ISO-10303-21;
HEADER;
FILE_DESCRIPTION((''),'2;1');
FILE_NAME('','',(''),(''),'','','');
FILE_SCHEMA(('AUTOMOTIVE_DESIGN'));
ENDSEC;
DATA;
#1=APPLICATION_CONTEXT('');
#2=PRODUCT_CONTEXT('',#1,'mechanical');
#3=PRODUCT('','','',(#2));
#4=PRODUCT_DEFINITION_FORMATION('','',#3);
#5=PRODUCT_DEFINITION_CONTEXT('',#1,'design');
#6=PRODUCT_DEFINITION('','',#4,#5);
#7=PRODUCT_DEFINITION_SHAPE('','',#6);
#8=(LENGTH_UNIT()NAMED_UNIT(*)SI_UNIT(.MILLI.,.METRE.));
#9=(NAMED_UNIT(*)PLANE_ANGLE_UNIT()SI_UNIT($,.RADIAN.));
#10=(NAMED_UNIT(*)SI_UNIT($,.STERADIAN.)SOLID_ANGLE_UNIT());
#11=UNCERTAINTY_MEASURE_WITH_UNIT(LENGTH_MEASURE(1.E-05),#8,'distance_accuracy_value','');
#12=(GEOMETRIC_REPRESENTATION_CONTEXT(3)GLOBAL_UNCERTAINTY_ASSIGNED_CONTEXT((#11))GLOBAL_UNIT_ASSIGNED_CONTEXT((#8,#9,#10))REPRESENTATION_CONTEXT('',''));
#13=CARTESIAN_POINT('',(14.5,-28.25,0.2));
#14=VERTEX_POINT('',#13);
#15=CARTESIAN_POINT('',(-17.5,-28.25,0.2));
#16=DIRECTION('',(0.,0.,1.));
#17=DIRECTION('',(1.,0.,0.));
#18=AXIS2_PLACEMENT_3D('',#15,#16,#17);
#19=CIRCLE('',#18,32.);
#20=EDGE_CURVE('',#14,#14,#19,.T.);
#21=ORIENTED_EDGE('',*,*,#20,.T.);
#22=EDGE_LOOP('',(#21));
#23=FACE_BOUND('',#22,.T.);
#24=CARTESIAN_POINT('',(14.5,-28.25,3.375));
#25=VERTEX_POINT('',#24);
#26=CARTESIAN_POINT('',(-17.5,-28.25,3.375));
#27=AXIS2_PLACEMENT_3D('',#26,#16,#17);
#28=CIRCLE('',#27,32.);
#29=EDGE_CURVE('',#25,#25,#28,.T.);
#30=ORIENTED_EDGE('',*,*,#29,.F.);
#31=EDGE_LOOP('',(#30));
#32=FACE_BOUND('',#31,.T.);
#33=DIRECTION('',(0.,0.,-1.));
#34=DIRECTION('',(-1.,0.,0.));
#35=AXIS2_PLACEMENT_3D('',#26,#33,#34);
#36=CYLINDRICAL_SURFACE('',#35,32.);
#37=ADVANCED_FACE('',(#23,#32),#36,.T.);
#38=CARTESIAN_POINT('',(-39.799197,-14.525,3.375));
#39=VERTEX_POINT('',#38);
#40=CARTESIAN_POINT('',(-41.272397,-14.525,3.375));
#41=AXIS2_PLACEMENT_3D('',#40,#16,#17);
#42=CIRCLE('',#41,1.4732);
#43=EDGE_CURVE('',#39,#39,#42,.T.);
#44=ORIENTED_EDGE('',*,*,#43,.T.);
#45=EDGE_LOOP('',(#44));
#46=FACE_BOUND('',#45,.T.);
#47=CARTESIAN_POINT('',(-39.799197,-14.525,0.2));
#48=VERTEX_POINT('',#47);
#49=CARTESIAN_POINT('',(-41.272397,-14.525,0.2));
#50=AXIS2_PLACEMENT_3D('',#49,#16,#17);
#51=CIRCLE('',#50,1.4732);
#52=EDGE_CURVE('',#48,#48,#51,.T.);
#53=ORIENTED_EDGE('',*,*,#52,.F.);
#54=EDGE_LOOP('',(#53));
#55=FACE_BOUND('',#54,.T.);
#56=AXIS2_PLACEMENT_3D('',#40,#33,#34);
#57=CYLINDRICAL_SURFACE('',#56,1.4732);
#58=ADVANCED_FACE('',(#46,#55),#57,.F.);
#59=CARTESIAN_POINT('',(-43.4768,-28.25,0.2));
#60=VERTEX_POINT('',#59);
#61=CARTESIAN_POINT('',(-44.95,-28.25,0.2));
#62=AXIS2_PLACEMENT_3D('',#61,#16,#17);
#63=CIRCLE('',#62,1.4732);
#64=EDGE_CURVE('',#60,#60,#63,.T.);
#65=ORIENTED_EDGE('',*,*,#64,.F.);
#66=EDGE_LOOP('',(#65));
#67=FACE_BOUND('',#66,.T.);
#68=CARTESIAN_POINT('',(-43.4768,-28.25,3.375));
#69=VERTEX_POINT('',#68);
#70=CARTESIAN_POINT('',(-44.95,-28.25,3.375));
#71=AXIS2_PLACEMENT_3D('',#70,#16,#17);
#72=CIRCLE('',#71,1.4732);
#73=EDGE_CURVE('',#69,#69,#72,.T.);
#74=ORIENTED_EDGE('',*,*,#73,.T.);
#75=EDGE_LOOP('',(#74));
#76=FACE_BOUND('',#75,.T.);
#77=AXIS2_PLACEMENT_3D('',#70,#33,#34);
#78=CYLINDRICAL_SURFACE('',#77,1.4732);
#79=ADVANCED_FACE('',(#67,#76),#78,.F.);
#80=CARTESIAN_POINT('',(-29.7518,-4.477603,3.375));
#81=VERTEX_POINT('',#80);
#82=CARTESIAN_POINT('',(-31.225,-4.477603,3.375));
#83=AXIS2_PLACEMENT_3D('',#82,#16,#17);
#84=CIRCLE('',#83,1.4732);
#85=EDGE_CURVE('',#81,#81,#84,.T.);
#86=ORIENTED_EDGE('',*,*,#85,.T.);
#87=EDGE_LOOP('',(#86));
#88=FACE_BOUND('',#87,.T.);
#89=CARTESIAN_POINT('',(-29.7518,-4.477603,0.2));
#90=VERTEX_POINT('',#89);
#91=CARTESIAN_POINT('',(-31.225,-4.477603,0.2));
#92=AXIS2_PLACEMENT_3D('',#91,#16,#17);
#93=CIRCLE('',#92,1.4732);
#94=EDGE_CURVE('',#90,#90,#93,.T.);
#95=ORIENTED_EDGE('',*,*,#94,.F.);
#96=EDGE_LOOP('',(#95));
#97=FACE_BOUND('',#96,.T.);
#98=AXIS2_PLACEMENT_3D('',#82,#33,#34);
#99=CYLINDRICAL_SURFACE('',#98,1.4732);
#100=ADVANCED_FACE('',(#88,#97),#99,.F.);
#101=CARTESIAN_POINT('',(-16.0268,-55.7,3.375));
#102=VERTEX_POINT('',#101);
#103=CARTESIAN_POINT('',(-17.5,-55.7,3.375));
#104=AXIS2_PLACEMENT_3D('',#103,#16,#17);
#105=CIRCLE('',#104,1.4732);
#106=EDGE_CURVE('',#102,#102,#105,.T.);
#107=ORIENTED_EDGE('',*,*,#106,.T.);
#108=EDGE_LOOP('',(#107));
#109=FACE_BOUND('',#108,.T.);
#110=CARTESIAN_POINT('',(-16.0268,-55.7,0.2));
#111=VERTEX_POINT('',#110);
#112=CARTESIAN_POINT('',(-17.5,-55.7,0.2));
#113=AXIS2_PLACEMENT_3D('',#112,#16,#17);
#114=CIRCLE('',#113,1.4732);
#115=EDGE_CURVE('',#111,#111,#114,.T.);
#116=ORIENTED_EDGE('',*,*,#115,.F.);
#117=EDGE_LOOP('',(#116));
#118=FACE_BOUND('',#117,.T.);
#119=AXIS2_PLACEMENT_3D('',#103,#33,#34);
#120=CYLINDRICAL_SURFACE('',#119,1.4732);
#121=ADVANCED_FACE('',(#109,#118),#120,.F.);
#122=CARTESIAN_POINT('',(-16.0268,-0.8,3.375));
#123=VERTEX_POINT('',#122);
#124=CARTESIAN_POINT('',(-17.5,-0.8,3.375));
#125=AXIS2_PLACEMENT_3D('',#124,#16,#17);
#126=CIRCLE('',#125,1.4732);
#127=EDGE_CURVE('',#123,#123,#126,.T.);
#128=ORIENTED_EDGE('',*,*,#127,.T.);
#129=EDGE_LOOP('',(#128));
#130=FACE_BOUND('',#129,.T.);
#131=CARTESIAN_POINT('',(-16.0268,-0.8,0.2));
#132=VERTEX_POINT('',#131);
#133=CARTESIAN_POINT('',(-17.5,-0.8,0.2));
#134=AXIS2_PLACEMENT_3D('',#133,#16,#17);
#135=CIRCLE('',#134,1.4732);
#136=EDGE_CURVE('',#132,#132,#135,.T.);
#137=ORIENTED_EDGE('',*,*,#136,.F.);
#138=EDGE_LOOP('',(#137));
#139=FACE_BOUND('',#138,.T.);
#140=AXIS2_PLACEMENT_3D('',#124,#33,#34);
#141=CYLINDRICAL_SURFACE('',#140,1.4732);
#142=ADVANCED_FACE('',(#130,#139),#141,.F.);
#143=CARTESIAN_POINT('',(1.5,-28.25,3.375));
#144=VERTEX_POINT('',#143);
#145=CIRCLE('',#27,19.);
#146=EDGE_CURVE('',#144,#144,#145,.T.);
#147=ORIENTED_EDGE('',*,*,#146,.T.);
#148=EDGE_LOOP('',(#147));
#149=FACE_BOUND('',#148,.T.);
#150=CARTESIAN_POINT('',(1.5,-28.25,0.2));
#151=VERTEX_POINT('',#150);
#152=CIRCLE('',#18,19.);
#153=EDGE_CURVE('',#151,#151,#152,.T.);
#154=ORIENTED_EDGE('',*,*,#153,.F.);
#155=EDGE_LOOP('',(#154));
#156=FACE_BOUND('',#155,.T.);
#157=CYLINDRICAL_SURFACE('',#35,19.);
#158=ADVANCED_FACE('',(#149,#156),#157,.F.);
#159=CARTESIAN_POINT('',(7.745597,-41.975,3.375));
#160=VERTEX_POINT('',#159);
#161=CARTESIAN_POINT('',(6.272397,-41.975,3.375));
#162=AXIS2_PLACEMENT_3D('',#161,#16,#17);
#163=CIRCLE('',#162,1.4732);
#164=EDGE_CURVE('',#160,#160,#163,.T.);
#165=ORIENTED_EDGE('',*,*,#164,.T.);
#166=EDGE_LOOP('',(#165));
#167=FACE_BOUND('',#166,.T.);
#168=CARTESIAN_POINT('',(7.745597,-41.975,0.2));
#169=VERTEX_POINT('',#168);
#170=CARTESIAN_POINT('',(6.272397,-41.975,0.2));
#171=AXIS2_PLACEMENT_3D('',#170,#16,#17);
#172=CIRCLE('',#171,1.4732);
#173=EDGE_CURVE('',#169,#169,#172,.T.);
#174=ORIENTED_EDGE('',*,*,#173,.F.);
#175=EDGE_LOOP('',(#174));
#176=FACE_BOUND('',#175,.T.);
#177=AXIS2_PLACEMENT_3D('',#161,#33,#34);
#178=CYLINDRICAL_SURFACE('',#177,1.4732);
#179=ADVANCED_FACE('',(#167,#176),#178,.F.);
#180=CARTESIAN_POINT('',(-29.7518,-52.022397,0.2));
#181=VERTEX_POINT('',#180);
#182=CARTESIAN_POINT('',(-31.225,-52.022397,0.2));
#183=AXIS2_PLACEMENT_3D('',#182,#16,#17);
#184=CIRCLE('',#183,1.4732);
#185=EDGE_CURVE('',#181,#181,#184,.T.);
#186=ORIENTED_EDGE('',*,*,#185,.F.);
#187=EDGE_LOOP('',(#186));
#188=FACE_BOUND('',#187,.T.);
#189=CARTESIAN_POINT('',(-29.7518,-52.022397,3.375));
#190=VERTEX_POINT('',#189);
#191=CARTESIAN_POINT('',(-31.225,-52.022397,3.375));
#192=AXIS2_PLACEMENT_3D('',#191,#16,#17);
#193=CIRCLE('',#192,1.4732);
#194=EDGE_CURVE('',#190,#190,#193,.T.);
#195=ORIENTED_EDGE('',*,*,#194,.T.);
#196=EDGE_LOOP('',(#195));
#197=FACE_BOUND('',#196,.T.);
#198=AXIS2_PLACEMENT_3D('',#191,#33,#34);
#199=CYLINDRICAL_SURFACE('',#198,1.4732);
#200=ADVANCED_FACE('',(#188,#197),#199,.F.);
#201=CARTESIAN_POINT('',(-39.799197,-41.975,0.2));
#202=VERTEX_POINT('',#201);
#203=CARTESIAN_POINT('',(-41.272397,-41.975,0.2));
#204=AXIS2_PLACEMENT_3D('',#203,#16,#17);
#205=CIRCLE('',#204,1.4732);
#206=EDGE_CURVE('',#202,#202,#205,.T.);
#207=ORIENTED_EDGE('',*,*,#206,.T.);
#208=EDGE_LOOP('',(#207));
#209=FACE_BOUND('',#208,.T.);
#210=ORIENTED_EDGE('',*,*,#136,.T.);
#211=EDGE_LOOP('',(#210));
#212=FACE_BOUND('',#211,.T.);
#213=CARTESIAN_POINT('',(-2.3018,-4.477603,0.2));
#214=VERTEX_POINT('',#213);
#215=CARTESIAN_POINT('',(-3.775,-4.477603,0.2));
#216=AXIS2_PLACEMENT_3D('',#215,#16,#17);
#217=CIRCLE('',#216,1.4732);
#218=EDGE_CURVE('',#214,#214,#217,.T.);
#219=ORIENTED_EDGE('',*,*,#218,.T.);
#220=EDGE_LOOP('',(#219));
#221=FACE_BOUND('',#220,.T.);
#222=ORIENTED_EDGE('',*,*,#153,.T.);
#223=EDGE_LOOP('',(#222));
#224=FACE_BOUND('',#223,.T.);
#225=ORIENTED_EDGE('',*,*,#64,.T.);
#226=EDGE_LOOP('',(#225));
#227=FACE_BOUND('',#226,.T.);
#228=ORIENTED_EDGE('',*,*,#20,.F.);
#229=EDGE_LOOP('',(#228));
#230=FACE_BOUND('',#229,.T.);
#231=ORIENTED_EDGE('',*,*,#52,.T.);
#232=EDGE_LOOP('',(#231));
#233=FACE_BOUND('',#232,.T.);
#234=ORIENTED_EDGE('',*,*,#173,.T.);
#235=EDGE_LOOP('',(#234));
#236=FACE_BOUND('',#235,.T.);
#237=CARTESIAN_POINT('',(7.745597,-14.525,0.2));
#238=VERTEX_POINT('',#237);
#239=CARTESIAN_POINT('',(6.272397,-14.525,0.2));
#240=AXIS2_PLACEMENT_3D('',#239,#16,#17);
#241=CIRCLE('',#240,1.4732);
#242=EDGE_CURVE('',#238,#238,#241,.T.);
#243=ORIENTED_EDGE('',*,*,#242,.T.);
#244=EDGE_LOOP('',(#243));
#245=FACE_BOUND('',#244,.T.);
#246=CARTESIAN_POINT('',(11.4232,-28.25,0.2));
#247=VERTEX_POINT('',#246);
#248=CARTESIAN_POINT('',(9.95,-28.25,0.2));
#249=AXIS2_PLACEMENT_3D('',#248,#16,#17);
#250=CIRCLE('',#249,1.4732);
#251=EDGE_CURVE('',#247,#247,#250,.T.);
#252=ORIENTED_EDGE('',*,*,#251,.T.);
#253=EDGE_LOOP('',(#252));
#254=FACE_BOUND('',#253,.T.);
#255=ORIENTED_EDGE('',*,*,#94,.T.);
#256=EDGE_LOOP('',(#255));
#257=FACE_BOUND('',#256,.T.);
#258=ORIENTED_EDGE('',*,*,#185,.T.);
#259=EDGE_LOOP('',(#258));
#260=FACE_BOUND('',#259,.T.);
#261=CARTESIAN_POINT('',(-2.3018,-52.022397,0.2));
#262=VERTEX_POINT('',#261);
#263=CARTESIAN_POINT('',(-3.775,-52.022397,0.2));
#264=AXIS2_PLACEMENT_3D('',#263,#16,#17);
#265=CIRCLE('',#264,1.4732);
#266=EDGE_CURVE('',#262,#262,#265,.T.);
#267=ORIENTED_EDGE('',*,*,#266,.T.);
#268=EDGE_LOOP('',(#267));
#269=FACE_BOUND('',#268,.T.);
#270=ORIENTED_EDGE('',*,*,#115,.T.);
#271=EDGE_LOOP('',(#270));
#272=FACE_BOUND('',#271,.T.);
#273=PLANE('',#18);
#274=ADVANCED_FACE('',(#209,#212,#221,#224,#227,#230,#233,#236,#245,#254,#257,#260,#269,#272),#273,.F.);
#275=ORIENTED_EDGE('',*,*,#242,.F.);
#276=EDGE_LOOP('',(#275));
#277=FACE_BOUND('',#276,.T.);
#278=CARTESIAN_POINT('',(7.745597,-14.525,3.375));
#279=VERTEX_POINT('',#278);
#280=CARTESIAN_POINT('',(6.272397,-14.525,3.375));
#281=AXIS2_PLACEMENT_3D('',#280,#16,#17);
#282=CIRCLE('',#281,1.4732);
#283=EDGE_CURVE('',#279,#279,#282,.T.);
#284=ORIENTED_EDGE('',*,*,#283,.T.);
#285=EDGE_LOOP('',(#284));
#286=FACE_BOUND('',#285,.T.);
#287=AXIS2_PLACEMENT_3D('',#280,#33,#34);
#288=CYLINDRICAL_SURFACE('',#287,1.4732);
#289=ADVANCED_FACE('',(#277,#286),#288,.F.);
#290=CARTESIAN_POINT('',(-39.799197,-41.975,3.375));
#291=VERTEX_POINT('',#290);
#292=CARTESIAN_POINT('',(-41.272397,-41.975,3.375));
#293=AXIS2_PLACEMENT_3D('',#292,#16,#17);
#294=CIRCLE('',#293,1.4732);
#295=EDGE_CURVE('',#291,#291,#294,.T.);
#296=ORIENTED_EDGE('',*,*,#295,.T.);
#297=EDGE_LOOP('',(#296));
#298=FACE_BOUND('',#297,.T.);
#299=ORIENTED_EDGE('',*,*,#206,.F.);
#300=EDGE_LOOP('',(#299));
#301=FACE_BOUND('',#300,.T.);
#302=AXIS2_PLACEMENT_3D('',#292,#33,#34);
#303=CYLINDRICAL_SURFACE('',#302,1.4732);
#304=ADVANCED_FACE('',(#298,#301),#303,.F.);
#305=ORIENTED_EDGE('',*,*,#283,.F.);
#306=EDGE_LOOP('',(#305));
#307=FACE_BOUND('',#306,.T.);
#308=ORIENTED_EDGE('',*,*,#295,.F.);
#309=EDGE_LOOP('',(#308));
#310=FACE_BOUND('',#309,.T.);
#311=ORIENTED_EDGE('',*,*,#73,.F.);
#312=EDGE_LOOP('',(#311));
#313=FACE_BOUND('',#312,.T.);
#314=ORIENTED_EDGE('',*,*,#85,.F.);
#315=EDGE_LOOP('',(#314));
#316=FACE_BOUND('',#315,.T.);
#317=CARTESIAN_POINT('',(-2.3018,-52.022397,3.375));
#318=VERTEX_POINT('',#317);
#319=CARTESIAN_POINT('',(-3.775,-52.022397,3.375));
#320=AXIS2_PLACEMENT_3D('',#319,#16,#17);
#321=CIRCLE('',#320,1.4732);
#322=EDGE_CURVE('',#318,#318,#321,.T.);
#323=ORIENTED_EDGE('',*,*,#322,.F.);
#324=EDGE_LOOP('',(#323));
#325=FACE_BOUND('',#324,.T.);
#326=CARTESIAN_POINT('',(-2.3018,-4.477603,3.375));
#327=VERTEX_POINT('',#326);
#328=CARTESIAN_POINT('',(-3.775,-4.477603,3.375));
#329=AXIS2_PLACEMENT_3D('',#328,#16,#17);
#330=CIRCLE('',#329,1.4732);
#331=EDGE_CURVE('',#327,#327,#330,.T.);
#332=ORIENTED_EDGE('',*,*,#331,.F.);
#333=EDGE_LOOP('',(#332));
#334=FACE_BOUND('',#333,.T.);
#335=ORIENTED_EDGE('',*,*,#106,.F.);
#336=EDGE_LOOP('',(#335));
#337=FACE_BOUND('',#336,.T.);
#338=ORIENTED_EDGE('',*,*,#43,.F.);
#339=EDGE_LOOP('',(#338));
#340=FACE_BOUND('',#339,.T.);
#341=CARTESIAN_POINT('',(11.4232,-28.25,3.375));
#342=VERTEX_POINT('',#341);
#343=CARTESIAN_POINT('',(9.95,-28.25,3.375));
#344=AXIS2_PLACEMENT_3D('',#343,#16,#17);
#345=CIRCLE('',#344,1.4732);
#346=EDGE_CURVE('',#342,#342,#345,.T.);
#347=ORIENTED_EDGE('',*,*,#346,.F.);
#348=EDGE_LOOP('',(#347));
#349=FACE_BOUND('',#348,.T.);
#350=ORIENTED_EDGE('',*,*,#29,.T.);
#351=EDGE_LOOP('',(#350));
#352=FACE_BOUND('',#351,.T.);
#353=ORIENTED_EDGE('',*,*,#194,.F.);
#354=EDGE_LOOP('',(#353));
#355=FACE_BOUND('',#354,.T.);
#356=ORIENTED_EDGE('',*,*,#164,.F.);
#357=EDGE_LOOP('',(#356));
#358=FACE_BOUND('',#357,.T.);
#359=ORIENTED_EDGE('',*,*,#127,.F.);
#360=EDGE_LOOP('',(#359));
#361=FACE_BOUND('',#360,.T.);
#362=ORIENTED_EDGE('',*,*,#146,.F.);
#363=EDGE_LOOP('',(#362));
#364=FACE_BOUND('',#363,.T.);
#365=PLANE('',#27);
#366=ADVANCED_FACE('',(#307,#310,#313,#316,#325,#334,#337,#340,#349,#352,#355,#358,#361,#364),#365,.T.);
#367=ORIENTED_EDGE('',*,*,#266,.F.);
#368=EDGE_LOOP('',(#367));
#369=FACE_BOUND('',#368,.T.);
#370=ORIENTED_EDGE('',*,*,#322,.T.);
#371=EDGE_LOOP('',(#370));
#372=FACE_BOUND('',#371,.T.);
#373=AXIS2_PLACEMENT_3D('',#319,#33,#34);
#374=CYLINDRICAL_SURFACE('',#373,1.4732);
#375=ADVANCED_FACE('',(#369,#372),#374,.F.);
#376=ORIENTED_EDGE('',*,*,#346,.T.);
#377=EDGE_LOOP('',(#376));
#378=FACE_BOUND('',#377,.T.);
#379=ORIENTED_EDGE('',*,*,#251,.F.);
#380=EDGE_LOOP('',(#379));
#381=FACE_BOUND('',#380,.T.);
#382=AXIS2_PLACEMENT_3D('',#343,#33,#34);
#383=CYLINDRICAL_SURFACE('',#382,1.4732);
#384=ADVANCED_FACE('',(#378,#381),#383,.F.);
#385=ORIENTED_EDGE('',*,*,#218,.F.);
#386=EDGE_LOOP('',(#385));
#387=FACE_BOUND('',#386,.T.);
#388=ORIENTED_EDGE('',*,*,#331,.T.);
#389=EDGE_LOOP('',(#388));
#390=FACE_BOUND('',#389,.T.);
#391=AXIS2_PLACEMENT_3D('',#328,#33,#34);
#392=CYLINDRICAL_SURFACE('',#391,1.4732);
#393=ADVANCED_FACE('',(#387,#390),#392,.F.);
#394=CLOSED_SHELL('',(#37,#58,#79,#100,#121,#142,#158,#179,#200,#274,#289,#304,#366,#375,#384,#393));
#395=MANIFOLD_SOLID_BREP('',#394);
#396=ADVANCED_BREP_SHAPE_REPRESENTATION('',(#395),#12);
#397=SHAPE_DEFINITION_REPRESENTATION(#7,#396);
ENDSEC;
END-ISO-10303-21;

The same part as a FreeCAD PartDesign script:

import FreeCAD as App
import Part
import Sketcher
from FreeCAD import Vector
Q = App.Units.Quantity

doc = App.newDocument("Part")
params = doc.addObject("Spreadsheet::Sheet", "Params")
for row, (alias, value) in enumerate([
    ("sketch1_diameter", "64 mm"),
    ("sketch1_diameter2", "38 mm"),
    ("pad1_length", "3.175 mm"),
], start=1):
    params.set(f"A{row}", alias)
    params.set(f"B{row}", "=" + value)
    params.setAlias(f"B{row}", alias)

body = doc.addObject("PartDesign::Body", "Body")

# Sketch on XY plane
sketch1 = body.newObject("Sketcher::SketchObject", "Sketch")
sketch1.AttachmentSupport = (doc.getObject("XY_Plane"), [""])
sketch1.MapMode = "FlatFace"
sketch1.AttachmentOffset = App.Placement(Vector(0, 0, 0.2), App.Rotation())
sketch1.addGeometry([
    Part.Circle(Vector(-17.5, -28.2, 0), Vector(0, 0, 1), 32),  # 0
    Part.Circle(Vector(-31.2, -52, 0), Vector(0, 0, 1), 1.5),  # 1
    Part.Circle(Vector(-41.3, -42, 0), Vector(0, 0, 1), 1.5),  # 2
    Part.Circle(Vector(-17.5, -55.7, 0), Vector(0, 0, 1), 1.5),  # 3
    Part.Circle(Vector(-3.8, -52, 0), Vector(0, 0, 1), 1.5),  # 4
    Part.Circle(Vector(6.3, -42, 0), Vector(0, 0, 1), 1.5),  # 5
    Part.Circle(Vector(-45, -28.2, 0), Vector(0, 0, 1), 1.5),  # 6
    Part.Circle(Vector(-41.3, -14.5, 0), Vector(0, 0, 1), 1.5),  # 7
    Part.Circle(Vector(-31.2, -4.5, 0), Vector(0, 0, 1), 1.5),  # 8
    Part.Circle(Vector(-17.5, -28.2, 0), Vector(0, 0, 1), 19),  # 9
    Part.Circle(Vector(9.9, -28.2, 0), Vector(0, 0, 1), 1.5),  # 10
    Part.Circle(Vector(6.3, -14.5, 0), Vector(0, 0, 1), 1.5),  # 11
    Part.Circle(Vector(-17.5, -0.8, 0), Vector(0, 0, 1), 1.5),  # 12
    Part.Circle(Vector(-3.8, -4.5, 0), Vector(0, 0, 1), 1.5),  # 13
], False)
sketch1.addConstraint([
    Sketcher.Constraint("Coincident", 9, 3, 0, 3),
    Sketcher.Constraint("Equal", 1, 2),
    Sketcher.Constraint("Equal", 2, 3),
    Sketcher.Constraint("Equal", 3, 4),
    Sketcher.Constraint("Equal", 4, 5),
    Sketcher.Constraint("Equal", 5, 6),
    Sketcher.Constraint("Equal", 6, 7),
    Sketcher.Constraint("Equal", 7, 8),
    Sketcher.Constraint("Equal", 8, 10),
    Sketcher.Constraint("Equal", 10, 11),
    Sketcher.Constraint("Equal", 11, 12),
    Sketcher.Constraint("Equal", 12, 13),
    Sketcher.Constraint("Horizontal", 1, 3, 4, 3),
    Sketcher.Constraint("Horizontal", 2, 3, 5, 3),
    Sketcher.Constraint("Horizontal", 0, 3, 6, 3),
    Sketcher.Constraint("Horizontal", 9, 3, 10, 3),
    Sketcher.Constraint("Horizontal", 7, 3, 11, 3),
    Sketcher.Constraint("Horizontal", 8, 3, 13, 3),
    Sketcher.Constraint("Vertical", 0, 3, 3, 3),
    Sketcher.Constraint("Vertical", 2, 3, 7, 3),
    Sketcher.Constraint("Vertical", 1, 3, 8, 3),
    Sketcher.Constraint("Vertical", 5, 3, 11, 3),
    Sketcher.Constraint("Vertical", 9, 3, 12, 3),
    Sketcher.Constraint("Vertical", 4, 3, 13, 3),
    Sketcher.Constraint("Diameter", 0, Q("64 mm")),
    Sketcher.Constraint("Diameter", 9, Q("38 mm")),
    Sketcher.Constraint("Diameter", 1, Q("2.9464 mm")),
    Sketcher.Constraint("DistanceX", 0, 3, -1, 1, Q("17.5 mm")),
    Sketcher.Constraint("DistanceY", 3, 3, -1, 1, Q("55.7 mm")),
    Sketcher.Constraint("DistanceY", 12, 3, -1, 1, Q("0.8 mm")),
    Sketcher.Constraint("DistanceY", 0, 3, -1, 1, Q("28.25 mm")),
    Sketcher.Constraint("DistanceX", 6, 3, -1, 1, Q("44.95 mm")),
    Sketcher.Constraint("DistanceX", -1, 1, 10, 3, Q("9.95 mm")),
    Sketcher.Constraint("DistanceX", 1, 3, 4, 3, Q("27.45 mm")),
    Sketcher.Constraint("DistanceY", 2, 3, 7, 3, Q("27.45 mm")),
    Sketcher.Constraint("DistanceX", 1, 3, -1, 1, Q("31.225 mm")),
    Sketcher.Constraint("DistanceY", 2, 3, -1, 1, Q("41.975 mm")),
    Sketcher.Constraint("DistanceY", 1, 3, -1, 1, Q("52.022397 mm")),
    Sketcher.Constraint("DistanceX", 2, 3, -1, 1, Q("41.272397 mm")),
    Sketcher.Constraint("DistanceX", -1, 1, 5, 3, Q("6.272397 mm")),
    Sketcher.Constraint("DistanceY", 8, 3, -1, 1, Q("4.477603 mm")),
])
sketch1.setExpression("Constraints[24]", "Params.sketch1_diameter")
sketch1.setExpression("Constraints[25]", "Params.sketch1_diameter2")
pad1 = body.newObject("PartDesign::Pad", "Pad")
pad1.Profile = sketch1
pad1.setExpression("Length", "Params.pad1_length")

doc.recompute()
